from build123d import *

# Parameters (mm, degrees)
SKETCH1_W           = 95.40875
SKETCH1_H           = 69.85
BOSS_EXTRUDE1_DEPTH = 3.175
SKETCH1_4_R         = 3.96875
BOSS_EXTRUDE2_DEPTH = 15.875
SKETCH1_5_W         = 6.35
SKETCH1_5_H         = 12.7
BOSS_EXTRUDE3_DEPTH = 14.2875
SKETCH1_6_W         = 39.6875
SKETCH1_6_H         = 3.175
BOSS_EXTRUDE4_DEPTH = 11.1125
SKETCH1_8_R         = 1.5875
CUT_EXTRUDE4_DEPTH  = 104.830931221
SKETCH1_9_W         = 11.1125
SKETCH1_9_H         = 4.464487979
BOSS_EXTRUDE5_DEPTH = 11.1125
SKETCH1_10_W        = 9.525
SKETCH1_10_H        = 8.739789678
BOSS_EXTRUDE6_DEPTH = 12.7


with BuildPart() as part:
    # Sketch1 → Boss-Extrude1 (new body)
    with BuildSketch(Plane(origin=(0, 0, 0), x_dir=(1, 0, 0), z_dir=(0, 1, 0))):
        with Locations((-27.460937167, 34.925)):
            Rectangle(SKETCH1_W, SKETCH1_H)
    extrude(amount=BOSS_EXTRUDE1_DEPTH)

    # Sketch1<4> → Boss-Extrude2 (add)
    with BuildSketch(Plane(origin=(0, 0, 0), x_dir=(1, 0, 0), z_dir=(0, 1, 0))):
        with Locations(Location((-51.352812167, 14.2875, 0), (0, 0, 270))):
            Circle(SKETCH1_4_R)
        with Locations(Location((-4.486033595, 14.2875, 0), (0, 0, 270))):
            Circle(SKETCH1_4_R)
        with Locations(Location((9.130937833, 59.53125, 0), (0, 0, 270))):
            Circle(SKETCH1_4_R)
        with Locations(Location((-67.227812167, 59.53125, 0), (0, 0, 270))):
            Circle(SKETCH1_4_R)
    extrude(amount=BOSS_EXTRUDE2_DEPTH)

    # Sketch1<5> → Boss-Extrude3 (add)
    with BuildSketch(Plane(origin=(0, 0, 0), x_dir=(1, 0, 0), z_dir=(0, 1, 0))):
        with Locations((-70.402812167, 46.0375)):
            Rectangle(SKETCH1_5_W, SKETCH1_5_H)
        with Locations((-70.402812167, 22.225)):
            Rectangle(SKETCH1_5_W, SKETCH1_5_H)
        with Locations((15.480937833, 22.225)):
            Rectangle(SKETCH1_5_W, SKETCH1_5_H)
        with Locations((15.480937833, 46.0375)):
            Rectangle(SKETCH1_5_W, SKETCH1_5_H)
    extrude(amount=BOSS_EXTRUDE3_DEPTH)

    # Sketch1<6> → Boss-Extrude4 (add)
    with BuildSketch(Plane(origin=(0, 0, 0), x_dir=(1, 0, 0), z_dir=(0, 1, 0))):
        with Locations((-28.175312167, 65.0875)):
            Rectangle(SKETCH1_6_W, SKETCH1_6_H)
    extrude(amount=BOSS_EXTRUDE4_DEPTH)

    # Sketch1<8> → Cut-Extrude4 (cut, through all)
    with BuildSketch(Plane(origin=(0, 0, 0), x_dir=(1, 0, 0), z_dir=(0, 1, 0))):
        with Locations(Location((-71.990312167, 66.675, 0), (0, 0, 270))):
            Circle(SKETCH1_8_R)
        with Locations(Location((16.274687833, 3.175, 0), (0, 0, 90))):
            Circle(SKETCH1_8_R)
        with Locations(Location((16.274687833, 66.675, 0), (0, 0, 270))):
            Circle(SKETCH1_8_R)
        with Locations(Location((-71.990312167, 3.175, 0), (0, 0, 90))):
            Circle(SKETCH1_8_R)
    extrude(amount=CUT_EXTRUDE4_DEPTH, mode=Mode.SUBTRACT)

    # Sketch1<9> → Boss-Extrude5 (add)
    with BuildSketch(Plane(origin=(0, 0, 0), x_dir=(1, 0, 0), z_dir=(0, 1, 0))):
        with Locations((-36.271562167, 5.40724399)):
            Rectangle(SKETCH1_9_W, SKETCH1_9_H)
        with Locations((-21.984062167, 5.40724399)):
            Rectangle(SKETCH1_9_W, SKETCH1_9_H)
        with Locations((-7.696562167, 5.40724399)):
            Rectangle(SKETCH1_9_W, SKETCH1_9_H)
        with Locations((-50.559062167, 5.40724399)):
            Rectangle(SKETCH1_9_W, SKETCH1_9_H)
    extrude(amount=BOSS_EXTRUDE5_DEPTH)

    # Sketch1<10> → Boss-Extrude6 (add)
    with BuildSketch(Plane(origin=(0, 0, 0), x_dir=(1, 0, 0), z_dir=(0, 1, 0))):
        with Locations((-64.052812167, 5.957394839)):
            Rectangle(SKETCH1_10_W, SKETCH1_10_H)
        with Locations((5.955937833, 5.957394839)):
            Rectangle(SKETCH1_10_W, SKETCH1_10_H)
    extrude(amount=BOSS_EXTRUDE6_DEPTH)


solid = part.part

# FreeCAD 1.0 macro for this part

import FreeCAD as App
import Part
import Sketcher

V = App.Vector
Q = App.Units.Quantity


def add_polygon(sketch, points):
    """Adds a closed chain of lines whose ends are joined by coincident constraints."""
    first, n = sketch.GeometryCount, len(points)
    for a, b in zip(points, points[1:] + points[:1]):
        sketch.addGeometry(Part.LineSegment(App.Vector(*a, 0), App.Vector(*b, 0)), False)
    for i in range(n):
        sketch.addConstraint(Sketcher.Constraint("Coincident", first + i, 2, first + (i + 1) % n, 1))

doc = App.newDocument("Part")
params = doc.addObject("Spreadsheet::Sheet", "Params")
for row, (alias, value) in enumerate([
    ("sketch1_height", "2.75 in"),
    ("pad1_length", "0.125 in"),
    ("sketch2_diameter", "0.3125 in"),
    ("pad2_length", "0.625 in"),
    ("sketch3_height", "0.5 in"),
    ("sketch3_width", "0.25 in"),
    ("pad3_length", "0.5625 in"),
    ("sketch4_width", "1.5625 in"),
    ("sketch4_height", "0.125 in"),
    ("pad4_length", "0.4375 in"),
    ("sketch5_diameter", "0.125 in"),
    ("sketch6_width", "0.4375 in"),
    ("pad5_length", "0.4375 in"),
    ("sketch7_width", "0.375 in"),
    ("pad6_length", "0.5 in"),
], start=1):
    params.set(f"A{row}", alias)
    params.set(f"B{row}", "=" + value)
    params.setAlias(f"B{row}", alias)

body = doc.addObject("PartDesign::Body", "Body")

# Sketch on XZ plane
sketch1 = doc.addObject("Sketcher::SketchObject", "Sketch")
body.addObject(sketch1)
sketch1.AttachmentSupport = (doc.XZ_Plane, [""])
sketch1.MapMode = "FlatFace"
add_polygon(sketch1, [(-75, -70), (-75, 0), (20, 0), (20, -70)])  # lines 0-3
sketch1.addConstraint([
    Sketcher.Constraint("Vertical", 0),
    Sketcher.Constraint("Horizontal", 1),
    Sketcher.Constraint("Vertical", 2),
    Sketcher.Constraint("Horizontal", 3),
    Sketcher.Constraint("PointOnObject", 0, 2, -1),
    Sketcher.Constraint("DistanceY", 0, 1, 0, 2, Q("2.75 in")),
    Sketcher.Constraint("DistanceX", 1, 1, 1, 2, 95.40875),
    Sketcher.Constraint("DistanceX", 0, 2, -1, 1, 75.165312),
])
sketch1.setExpression("Constraints[9]", "Params.sketch1_height")
pad1 = doc.addObject("PartDesign::Pad", "Pad")
body.addObject(pad1)
pad1.Profile = sketch1
pad1.setExpression("Length", "Params.pad1_length")
pad1.Reversed = True

# Sketch on XZ plane
sketch2 = doc.addObject("Sketcher::SketchObject", "Sketch001")
body.addObject(sketch2)
sketch2.AttachmentSupport = (doc.XZ_Plane, [""])
sketch2.MapMode = "FlatFace"
sketch2.addGeometry([
    Part.Circle(V(-51.4, -14.3, 0), V(0, 0, 1), 4),
    Part.Circle(V(-4.5, -14.3, 0), V(0, 0, 1), 4),
    Part.Circle(V(9.1, -59.5, 0), V(0, 0, 1), 4),
    Part.Circle(V(-67.2, -59.5, 0), V(0, 0, 1), 4),
], False)
sketch2.addConstraint([
    Sketcher.Constraint("Equal", 0, 1),
    Sketcher.Constraint("Equal", 1, 2),
    Sketcher.Constraint("Equal", 2, 3),
    Sketcher.Constraint("Horizontal", 0, 3, 1, 3),
    Sketcher.Constraint("Horizontal", 2, 3, 3, 3),
    Sketcher.Constraint("Diameter", 0, Q("0.3125 in")),
    Sketcher.Constraint("DistanceY", 0, 3, -1, 1, Q("0.5625 in")),
    Sketcher.Constraint("DistanceY", 2, 3, -1, 1, Q("2.34375 in")),
    Sketcher.Constraint("DistanceX", 3, 3, 0, 3, Q("0.625 in")),
    Sketcher.Constraint("DistanceX", 0, 3, 1, 3, 46.866779),
    Sketcher.Constraint("DistanceX", 1, 3, 2, 3, 13.616971),
    Sketcher.Constraint("DistanceX", 0, 3, -1, 1, 51.352812),
])
sketch2.setExpression("Constraints[5]", "Params.sketch2_diameter")
pad2 = doc.addObject("PartDesign::Pad", "Pad001")
body.addObject(pad2)
pad2.Profile = sketch2
pad2.setExpression("Length", "Params.pad2_length")
pad2.Reversed = True

# Sketch on XZ plane
sketch3 = doc.addObject("Sketcher::SketchObject", "Sketch002")
body.addObject(sketch3)
sketch3.AttachmentSupport = (doc.XZ_Plane, [""])
sketch3.MapMode = "FlatFace"
add_polygon(sketch3, [(-74, -52), (-74, -40), (-67, -40), (-67, -52)])  # lines 0-3
add_polygon(sketch3, [(-74, -29), (-74, -16), (-67, -16), (-67, -29)])  # lines 4-7
add_polygon(sketch3, [(12, -29), (12, -16), (19, -16), (19, -29)])  # lines 8-11
add_polygon(sketch3, [(12, -52), (12, -40), (19, -40), (19, -52)])  # lines 12-15
sketch3.addConstraint([
    Sketcher.Constraint("Vertical", 0),
    Sketcher.Constraint("Horizontal", 1),
    Sketcher.Constraint("Vertical", 2),
    Sketcher.Constraint("Horizontal", 3),
    Sketcher.Constraint("Vertical", 4),
    Sketcher.Constraint("Horizontal", 5),
    Sketcher.Constraint("Vertical", 6),
    Sketcher.Constraint("Horizontal", 7),
    Sketcher.Constraint("Vertical", 8),
    Sketcher.Constraint("Horizontal", 9),
    Sketcher.Constraint("Vertical", 10),
    Sketcher.Constraint("Horizontal", 11),
    Sketcher.Constraint("Vertical", 12),
    Sketcher.Constraint("Horizontal", 13),
    Sketcher.Constraint("Vertical", 14),
    Sketcher.Constraint("Horizontal", 15),
    Sketcher.Constraint("Horizontal", 5, 2, 8, 2),
    Sketcher.Constraint("Horizontal", 7, 2, 10, 2),
    Sketcher.Constraint("Horizontal", 1, 2, 12, 2),
    Sketcher.Constraint("Horizontal", 3, 2, 14, 2),
    Sketcher.Constraint("Vertical", 3, 2, 4, 2),
    Sketcher.Constraint("Vertical", 2, 2, 5, 2),
    Sketcher.Constraint("Vertical", 11, 2, 12, 2),
    Sketcher.Constraint("Vertical", 10, 2, 13, 2),
    Sketcher.Constraint("Equal", 7, 9),
    Sketcher.Constraint("Equal", 2, 4),
    Sketcher.Constraint("DistanceY", 0, 1, 0, 2, Q("0.5 in")),
    Sketcher.Constraint("DistanceX", 1, 1, 1, 2, Q("0.25 in")),
    Sketcher.Constraint("DistanceY", 0, 2, -1, 1, Q("1.5625 in")),
    Sketcher.Constraint("DistanceY", 4, 2, -1, 1, Q("0.625 in")),
    Sketcher.Constraint("DistanceX", 5, 2, 8, 2, 79.53375),
    Sketcher.Constraint("DistanceX", 0, 2, -1, 1, 73.577812),
])
sketch3.setExpression("Constraints[42]", "Params.sketch3_height")
sketch3.setExpression("Constraints[43]", "Params.sketch3_width")
pad3 = doc.addObject("PartDesign::Pad", "Pad002")
body.addObject(pad3)
pad3.Profile = sketch3
pad3.setExpression("Length", "Params.pad3_length")
pad3.Reversed = True

# Sketch on XZ plane
sketch4 = doc.addObject("Sketcher::SketchObject", "Sketch003")
body.addObject(sketch4)
sketch4.AttachmentSupport = (doc.XZ_Plane, [""])
sketch4.MapMode = "FlatFace"
add_polygon(sketch4, [(-48, -66.7), (-48, -63.5), (-8.3, -63.5), (-8.3, -66.7)])  # lines 0-3
sketch4.addConstraint([
    Sketcher.Constraint("Vertical", 0),
    Sketcher.Constraint("Horizontal", 1),
    Sketcher.Constraint("Vertical", 2),
    Sketcher.Constraint("Horizontal", 3),
    Sketcher.Constraint("DistanceY", 0, 2, -1, 1, Q("2.5 in")),
    Sketcher.Constraint("DistanceX", 1, 1, 1, 2, Q("1.5625 in")),
    Sketcher.Constraint("DistanceY", 0, 1, 0, 2, Q("0.125 in")),
    Sketcher.Constraint("DistanceX", 0, 2, -1, 1, 48.019062),
])
sketch4.setExpression("Constraints[9]", "Params.sketch4_width")
sketch4.setExpression("Constraints[10]", "Params.sketch4_height")
pad4 = doc.addObject("PartDesign::Pad", "Pad003")
body.addObject(pad4)
pad4.Profile = sketch4
pad4.setExpression("Length", "Params.pad4_length")
pad4.Reversed = True

# Sketch on XZ plane
sketch5 = doc.addObject("Sketcher::SketchObject", "Sketch004")
body.addObject(sketch5)
sketch5.AttachmentSupport = (doc.XZ_Plane, [""])
sketch5.MapMode = "FlatFace"
sketch5.addGeometry([
    Part.Circle(V(-72, -66.7, 0), V(0, 0, 1), 1.6),
    Part.Circle(V(16.3, -3.2, 0), V(0, 0, 1), 1.6),
    Part.Circle(V(16.3, -66.7, 0), V(0, 0, 1), 1.6),
    Part.Circle(V(-72, -3.2, 0), V(0, 0, 1), 1.6),
], False)
sketch5.addConstraint([
    Sketcher.Constraint("Equal", 0, 1),
    Sketcher.Constraint("Equal", 1, 2),
    Sketcher.Constraint("Equal", 2, 3),
    Sketcher.Constraint("Horizontal", 0, 3, 2, 3),
    Sketcher.Constraint("Horizontal", 1, 3, 3, 3),
    Sketcher.Constraint("Vertical", 1, 3, 2, 3),
    Sketcher.Constraint("Vertical", 0, 3, 3, 3),
    Sketcher.Constraint("Diameter", 0, Q("0.125 in")),
    Sketcher.Constraint("DistanceY", 0, 3, 1, 3, Q("2.5 in")),
    Sketcher.Constraint("DistanceY", 0, 3, -1, 1, Q("2.625 in")),
    Sketcher.Constraint("DistanceX", 0, 3, 1, 3, Q("3.475 in")),
    Sketcher.Constraint("DistanceX", 0, 3, -1, 1, 71.990312),
])
sketch5.setExpression("Constraints[7]", "Params.sketch5_diameter")
pocket1 = doc.addObject("PartDesign::Pocket", "Pocket")
body.addObject(pocket1)
pocket1.Profile = sketch5
pocket1.Type = "ThroughAll"

# Sketch on XZ plane
sketch6 = doc.addObject("Sketcher::SketchObject", "Sketch005")
body.addObject(sketch6)
sketch6.AttachmentSupport = (doc.XZ_Plane, [""])
sketch6.MapMode = "FlatFace"
add_polygon(sketch6, [(-41.8, -7.6), (-41.8, -3.2), (-30.7, -3.2), (-30.7, -7.6)])  # lines 0-3
add_polygon(sketch6, [(-27.5, -7.6), (-27.5, -3.2), (-16.4, -3.2), (-16.4, -7.6)])  # lines 4-7
add_polygon(sketch6, [(-13.3, -7.6), (-13.3, -3.2), (-2.1, -3.2), (-2.1, -7.6)])  # lines 8-11
add_polygon(sketch6, [(-56.1, -7.6), (-56.1, -3.2), (-45, -3.2), (-45, -7.6)])  # lines 12-15
sketch6.addConstraint([
    Sketcher.Constraint("Vertical", 0),
    Sketcher.Constraint("Horizontal", 1),
    Sketcher.Constraint("Vertical", 2),
    Sketcher.Constraint("Horizontal", 3),
    Sketcher.Constraint("Vertical", 4),
    Sketcher.Constraint("Horizontal", 5),
    Sketcher.Constraint("Vertical", 6),
    Sketcher.Constraint("Horizontal", 7),
    Sketcher.Constraint("Vertical", 8),
    Sketcher.Constraint("Horizontal", 9),
    Sketcher.Constraint("Vertical", 10),
    Sketcher.Constraint("Horizontal", 11),
    Sketcher.Constraint("Vertical", 12),
    Sketcher.Constraint("Horizontal", 13),
    Sketcher.Constraint("Vertical", 14),
    Sketcher.Constraint("Horizontal", 15),
    Sketcher.Constraint("Horizontal", 1, 2, 4, 2),
    Sketcher.Constraint("Horizontal", 3, 2, 6, 2),
    Sketcher.Constraint("Horizontal", 5, 2, 8, 2),
    Sketcher.Constraint("Horizontal", 7, 2, 10, 2),
    Sketcher.Constraint("Horizontal", 9, 2, 12, 2),
    Sketcher.Constraint("Horizontal", 11, 2, 14, 2),
    Sketcher.Constraint("Equal", 3, 5),
    Sketcher.Constraint("Equal", 7, 9),
    Sketcher.Constraint("Equal", 11, 13),
    Sketcher.Constraint("DistanceX", 0, 2, 5, 2, Q("1 in")),
    Sketcher.Constraint("DistanceX", 4, 2, 9, 2, Q("1 in")),
    Sketcher.Constraint("DistanceX", 12, 2, 1, 2, Q("1 in")),
    Sketcher.Constraint("DistanceX", 1, 1, 1, 2, Q("0.4375 in")),
    Sketcher.Constraint("DistanceY", 0, 2, -1, 1, Q("0.125 in")),
    Sketcher.Constraint("DistanceY", 0, 1, 0, 2, 4.464488),
    Sketcher.Constraint("DistanceX", 0, 2, -1, 1, 41.827812),
])
sketch6.setExpression("Constraints[44]", "Params.sketch6_width")
pad5 = doc.addObject("PartDesign::Pad", "Pad004")
body.addObject(pad5)
pad5.Profile = sketch6
pad5.setExpression("Length", "Params.pad5_length")
pad5.Reversed = True

# Sketch on XZ plane
sketch7 = doc.addObject("Sketcher::SketchObject", "Sketch006")
body.addObject(sketch7)
sketch7.AttachmentSupport = (doc.XZ_Plane, [""])
sketch7.MapMode = "FlatFace"
add_polygon(sketch7, [(-69, -10), (-69, -2), (-59, -2), (-59, -10)])  # lines 0-3
add_polygon(sketch7, [(1, -10), (1, -2), (11, -2), (11, -10)])  # lines 4-7
sketch7.addConstraint([
    Sketcher.Constraint("Vertical", 0),
    Sketcher.Constraint("Horizontal", 1),
    Sketcher.Constraint("Vertical", 2),
    Sketcher.Constraint("Horizontal", 3),
    Sketcher.Constraint("Vertical", 4),
    Sketcher.Constraint("Horizontal", 5),
    Sketcher.Constraint("Vertical", 6),
    Sketcher.Constraint("Horizontal", 7),
    Sketcher.Constraint("Horizontal", 1, 2, 4, 2),
    Sketcher.Constraint("Horizontal", 3, 2, 6, 2),
    Sketcher.Constraint("Equal", 3, 5),
    Sketcher.Constraint("DistanceX", 1, 1, 1, 2, Q("0.375 in")),
    Sketcher.Constraint("DistanceY", 0, 2, -1, 1, Q("0.0625 in")),
    Sketcher.Constraint("DistanceY", 0, 1, 0, 2, 8.73979),
    Sketcher.Constraint("DistanceX", 1, 2, 4, 2, 60.48375),
    Sketcher.Constraint("DistanceX", 0, 2, -1, 1, 68.815312),
])
sketch7.setExpression("Constraints[19]", "Params.sketch7_width")
pad6 = doc.addObject("PartDesign::Pad", "Pad005")
body.addObject(pad6)
pad6.Profile = sketch7
pad6.setExpression("Length", "Params.pad6_length")
pad6.Reversed = True

doc.recompute()
